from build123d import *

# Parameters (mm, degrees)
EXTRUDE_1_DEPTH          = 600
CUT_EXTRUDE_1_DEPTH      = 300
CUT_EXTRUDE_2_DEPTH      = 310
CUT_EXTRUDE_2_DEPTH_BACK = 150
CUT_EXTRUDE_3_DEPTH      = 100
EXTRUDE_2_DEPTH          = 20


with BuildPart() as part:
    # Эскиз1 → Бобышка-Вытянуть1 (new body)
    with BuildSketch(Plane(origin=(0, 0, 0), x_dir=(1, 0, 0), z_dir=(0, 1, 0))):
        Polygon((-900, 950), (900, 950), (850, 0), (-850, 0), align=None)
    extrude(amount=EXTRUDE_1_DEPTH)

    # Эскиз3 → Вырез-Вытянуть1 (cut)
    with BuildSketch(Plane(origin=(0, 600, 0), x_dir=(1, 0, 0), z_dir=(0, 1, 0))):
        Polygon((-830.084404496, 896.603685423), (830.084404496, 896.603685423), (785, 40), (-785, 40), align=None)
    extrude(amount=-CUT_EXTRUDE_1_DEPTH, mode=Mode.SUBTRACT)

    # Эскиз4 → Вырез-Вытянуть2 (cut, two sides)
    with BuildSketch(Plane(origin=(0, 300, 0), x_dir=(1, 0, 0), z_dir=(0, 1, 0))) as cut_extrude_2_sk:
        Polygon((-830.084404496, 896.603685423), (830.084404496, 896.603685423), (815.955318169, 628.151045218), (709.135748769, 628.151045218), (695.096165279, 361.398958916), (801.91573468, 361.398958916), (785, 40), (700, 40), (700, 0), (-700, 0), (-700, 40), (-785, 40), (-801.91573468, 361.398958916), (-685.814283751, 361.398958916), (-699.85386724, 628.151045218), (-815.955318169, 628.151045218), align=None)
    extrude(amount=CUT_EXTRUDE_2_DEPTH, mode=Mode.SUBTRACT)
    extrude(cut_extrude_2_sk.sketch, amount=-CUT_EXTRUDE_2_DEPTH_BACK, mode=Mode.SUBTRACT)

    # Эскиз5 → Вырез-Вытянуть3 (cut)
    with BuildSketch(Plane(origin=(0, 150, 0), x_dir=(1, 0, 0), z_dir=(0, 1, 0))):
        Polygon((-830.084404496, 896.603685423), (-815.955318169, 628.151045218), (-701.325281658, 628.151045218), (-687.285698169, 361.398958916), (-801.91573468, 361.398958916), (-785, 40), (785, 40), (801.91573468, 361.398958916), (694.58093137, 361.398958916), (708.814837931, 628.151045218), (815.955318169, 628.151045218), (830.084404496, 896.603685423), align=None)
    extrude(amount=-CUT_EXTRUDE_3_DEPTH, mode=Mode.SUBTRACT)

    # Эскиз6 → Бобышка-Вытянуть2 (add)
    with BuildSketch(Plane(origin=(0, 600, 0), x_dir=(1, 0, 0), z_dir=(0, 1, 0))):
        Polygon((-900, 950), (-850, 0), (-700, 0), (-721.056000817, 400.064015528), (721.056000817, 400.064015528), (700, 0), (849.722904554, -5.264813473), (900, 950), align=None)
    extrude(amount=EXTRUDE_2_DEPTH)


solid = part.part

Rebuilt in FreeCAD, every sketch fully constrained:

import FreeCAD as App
import Part
import Sketcher
from FreeCAD import Vector


def add_polygon(sketch, points):
    """Adds a closed chain of lines whose ends are joined by coincident constraints."""
    first, n = sketch.GeometryCount, len(points)
    for a, b in zip(points, points[1:] + points[:1]):
        sketch.addGeometry(Part.LineSegment(App.Vector(*a, 0), App.Vector(*b, 0)), False)
    for i in range(n):
        sketch.addConstraint(Sketcher.Constraint("Coincident", first + i, 2, first + (i + 1) % n, 1))

doc = App.newDocument("Part")
body = doc.addObject("PartDesign::Body", "Body")

sketch1 = doc.addObject("Sketcher::SketchObject", "Sketch")
body.addObject(sketch1)
sketch1.AttachmentSupport = (doc.XZ_Plane, [""])
sketch1.MapMode = "FlatFace"
add_polygon(sketch1, [(900, -950), (-900, -950), (-850, 0), (850, 0)])
sketch1.addConstraint([
    Sketcher.Constraint("Horizontal", 0),
    Sketcher.Constraint("Horizontal", 2),
    Sketcher.Constraint("Symmetric", 1, 2, 2, 2, -1, 1),
    Sketcher.Constraint("Equal", 1, 3),
    Sketcher.Constraint("DistanceX", 0, 2, 0, 1, 1800.0),
    Sketcher.Constraint("DistanceX", 2, 1, 2, 2, 1700.0),
    Sketcher.Constraint("DistanceY", 0, 2, -1, 1, 950.0),
])
pad1 = doc.addObject("PartDesign::Pad", "Pad")
body.addObject(pad1)
pad1.Profile = sketch1
pad1.Length = 600
pad1.Reversed = True

sketch2 = doc.addObject("Sketcher::SketchObject", "Sketch001")
body.addObject(sketch2)
sketch2.AttachmentSupport = (doc.XZ_Plane, [""])
sketch2.MapMode = "FlatFace"
sketch2.AttachmentOffset = App.Placement(Vector(0, 0, -600), App.Rotation())
add_polygon(sketch2, [(830, -897), (-830, -897), (-785, -40), (785, -40)])
sketch2.addConstraint([
    Sketcher.Constraint("Horizontal", 0),
    Sketcher.Constraint("Horizontal", 2),
    Sketcher.Constraint("Equal", 1, 3),
    Sketcher.Constraint("DistanceX", 2, 1, 2, 2, 1570.0),
    Sketcher.Constraint("DistanceX", 1, 2, -1, 1, 785.0),
    Sketcher.Constraint("DistanceY", 1, 2, -1, 1, 40.0),
    Sketcher.Constraint("DistanceX", 0, 2, 0, 1, 1660.168809),
    Sketcher.Constraint("Distance", 1, 857.789297),
])
pocket1 = doc.addObject("PartDesign::Pocket", "Pocket")
body.addObject(pocket1)
pocket1.Profile = sketch2
pocket1.Length = 300
pocket1.Reversed = True

sketch3 = doc.addObject("Sketcher::SketchObject", "Sketch002")
body.addObject(sketch3)
sketch3.AttachmentSupport = (doc.XZ_Plane, [""])
sketch3.MapMode = "FlatFace"
sketch3.AttachmentOffset = App.Placement(Vector(0, 0, -300), App.Rotation())
add_polygon(sketch3, [(830, -897), (-830, -897), (-816, -628), (-700, -628), (-686, -361), (-802, -361), (-785, -40), (-700, -40), (-700, 0), (700, 0), (700, -40), (785, -40), (802, -361), (695, -361), (709, -628), (816, -628)])
sketch3.addConstraint([
    Sketcher.Constraint("Horizontal", 0),
    Sketcher.Constraint("Horizontal", 2),
    Sketcher.Constraint("Horizontal", 4),
    Sketcher.Constraint("Horizontal", 6),
    Sketcher.Constraint("Vertical", 7),
    Sketcher.Constraint("Horizontal", 8),
    Sketcher.Constraint("Vertical", 9),
    Sketcher.Constraint("Horizontal", 10),
    Sketcher.Constraint("Horizontal", 12),
    Sketcher.Constraint("Horizontal", 14),
    Sketcher.Constraint("Symmetric", 7, 2, 8, 2, -1, 1),
    Sketcher.Constraint("Symmetric", 5, 2, 10, 2, -2),
    Sketcher.Constraint("Symmetric", 4, 2, 11, 2, -2),
    Sketcher.Constraint("Symmetric", 1, 2, 14, 2, -2),
    Sketcher.Constraint("Parallel", 1, 3),
    Sketcher.Constraint("Parallel", 3, 5),
    Sketcher.Constraint("Parallel", 11, 13),
    Sketcher.Constraint("Parallel", 13, 15),
    Sketcher.Constraint("Equal", 2, 4),
    Sketcher.Constraint("DistanceX", 6, 1, 6, 2, 85.0),
    Sketcher.Constraint("DistanceX", 8, 1, 8, 2, 1400.0),
    Sketcher.Constraint("DistanceY", 7, 1, 7, 2, 40.0),
    Sketcher.Constraint("Distance", 1, 268.824201),
    Sketcher.Constraint("Distance", 5, 321.843802),
    Sketcher.Constraint("DistanceX", 0, 2, 0, 1, 1660.168809),
    Sketcher.Constraint("DistanceX", 2, 1, 2, 2, 116.101451),
    Sketcher.Constraint("DistanceX", 12, 2, 12, 1, 106.819569),
    Sketcher.Constraint("DistanceX", 1, 2, -1, 1, 815.955318),
])
pocket2 = doc.addObject("PartDesign::Pocket", "Pocket001")
body.addObject(pocket2)
pocket2.Profile = sketch3
pocket2.Type = "TwoLengths"
pocket2.Length = 310
pocket2.Length2 = 150

sketch4 = doc.addObject("Sketcher::SketchObject", "Sketch003")
body.addObject(sketch4)
sketch4.AttachmentSupport = (doc.XZ_Plane, [""])
sketch4.MapMode = "FlatFace"
sketch4.AttachmentOffset = App.Placement(Vector(0, 0, -150), App.Rotation())
add_polygon(sketch4, [(-830, -897), (-816, -628), (-701, -628), (-687, -361), (-802, -361), (-785, -40), (785, -40), (802, -361), (695, -361), (709, -628), (816, -628), (830, -897)])
sketch4.addConstraint([
    Sketcher.Constraint("Horizontal", 1),
    Sketcher.Constraint("Horizontal", 3),
    Sketcher.Constraint("Horizontal", 5),
    Sketcher.Constraint("Horizontal", 7),
    Sketcher.Constraint("Horizontal", 9),
    Sketcher.Constraint("Horizontal", 11),
    Sketcher.Constraint("Symmetric", 3, 2, 6, 2, -2),
    Sketcher.Constraint("Symmetric", 0, 2, 9, 2, -2),
    Sketcher.Constraint("Parallel", 0, 2),
    Sketcher.Constraint("Parallel", 2, 4),
    Sketcher.Constraint("Parallel", 6, 10),
    Sketcher.Constraint("Equal", 1, 3),
    Sketcher.Constraint("Equal", 4, 6),
    Sketcher.Constraint("DistanceX", 5, 1, 5, 2, 1570.0),
    Sketcher.Constraint("DistanceY", 4, 2, -1, 1, 40.0),
    Sketcher.Constraint("Distance", 0, 268.824201),
    Sketcher.Constraint("Distance", 4, 321.843802),
    Sketcher.Constraint("DistanceX", 9, 1, 9, 2, 107.14048),
    Sketcher.Constraint("DistanceX", 11, 2, 11, 1, 1660.168809),
    Sketcher.Constraint("DistanceX", 2, 2, -1, 1, 687.285698),
    Sketcher.Constraint("DistanceX", 1, 2, 9, 2, 1517.2806),
    Sketcher.Constraint("DistanceX", 7, 2, 7, 1, 107.334803),
])
pocket3 = doc.addObject("PartDesign::Pocket", "Pocket002")
body.addObject(pocket3)
pocket3.Profile = sketch4
pocket3.Length = 100
pocket3.Reversed = True

sketch5 = doc.addObject("Sketcher::SketchObject", "Sketch004")
body.addObject(sketch5)
sketch5.AttachmentSupport = (doc.XZ_Plane, [""])
sketch5.MapMode = "FlatFace"
sketch5.AttachmentOffset = App.Placement(Vector(0, 0, -600), App.Rotation())
add_polygon(sketch5, [(-900, -950), (-850, 0), (-700, 0), (-721, -400), (721, -400), (700, 0), (850, 5), (900, -950)])
sketch5.addConstraint([
    Sketcher.Constraint("Horizontal", 1),
    Sketcher.Constraint("Horizontal", 3),
    Sketcher.Constraint("Horizontal", 7),
    Sketcher.Constraint("Symmetric", 1, 2, 4, 2, -1, 1),
    Sketcher.Constraint("PointOnObject", 0, 2, -1),
    Sketcher.Constraint("Parallel", 0, 2),
    Sketcher.Constraint("Parallel", 4, 6),
    Sketcher.Constraint("Equal", 2, 4),
    Sketcher.Constraint("DistanceX", 1, 1, 1, 2, 150.0),
    Sketcher.Constraint("DistanceX", 7, 2, 7, 1, 1800.0),
    Sketcher.Constraint("DistanceX", 0, 2, -1, 1, 850.0),
    Sketcher.Constraint("DistanceX", -1, 1, 6, 2, 900.0),
    Sketcher.Constraint("DistanceY", 6, 2, -1, 1, 950.0),
    Sketcher.Constraint("DistanceX", 3, 1, 3, 2, 1442.112002),
    Sketcher.Constraint("Distance", 5, 149.815441),
])
pad2 = doc.addObject("PartDesign::Pad", "Pad001")
body.addObject(pad2)
pad2.Profile = sketch5
pad2.Length = 20
pad2.Reversed = True

doc.recompute()
